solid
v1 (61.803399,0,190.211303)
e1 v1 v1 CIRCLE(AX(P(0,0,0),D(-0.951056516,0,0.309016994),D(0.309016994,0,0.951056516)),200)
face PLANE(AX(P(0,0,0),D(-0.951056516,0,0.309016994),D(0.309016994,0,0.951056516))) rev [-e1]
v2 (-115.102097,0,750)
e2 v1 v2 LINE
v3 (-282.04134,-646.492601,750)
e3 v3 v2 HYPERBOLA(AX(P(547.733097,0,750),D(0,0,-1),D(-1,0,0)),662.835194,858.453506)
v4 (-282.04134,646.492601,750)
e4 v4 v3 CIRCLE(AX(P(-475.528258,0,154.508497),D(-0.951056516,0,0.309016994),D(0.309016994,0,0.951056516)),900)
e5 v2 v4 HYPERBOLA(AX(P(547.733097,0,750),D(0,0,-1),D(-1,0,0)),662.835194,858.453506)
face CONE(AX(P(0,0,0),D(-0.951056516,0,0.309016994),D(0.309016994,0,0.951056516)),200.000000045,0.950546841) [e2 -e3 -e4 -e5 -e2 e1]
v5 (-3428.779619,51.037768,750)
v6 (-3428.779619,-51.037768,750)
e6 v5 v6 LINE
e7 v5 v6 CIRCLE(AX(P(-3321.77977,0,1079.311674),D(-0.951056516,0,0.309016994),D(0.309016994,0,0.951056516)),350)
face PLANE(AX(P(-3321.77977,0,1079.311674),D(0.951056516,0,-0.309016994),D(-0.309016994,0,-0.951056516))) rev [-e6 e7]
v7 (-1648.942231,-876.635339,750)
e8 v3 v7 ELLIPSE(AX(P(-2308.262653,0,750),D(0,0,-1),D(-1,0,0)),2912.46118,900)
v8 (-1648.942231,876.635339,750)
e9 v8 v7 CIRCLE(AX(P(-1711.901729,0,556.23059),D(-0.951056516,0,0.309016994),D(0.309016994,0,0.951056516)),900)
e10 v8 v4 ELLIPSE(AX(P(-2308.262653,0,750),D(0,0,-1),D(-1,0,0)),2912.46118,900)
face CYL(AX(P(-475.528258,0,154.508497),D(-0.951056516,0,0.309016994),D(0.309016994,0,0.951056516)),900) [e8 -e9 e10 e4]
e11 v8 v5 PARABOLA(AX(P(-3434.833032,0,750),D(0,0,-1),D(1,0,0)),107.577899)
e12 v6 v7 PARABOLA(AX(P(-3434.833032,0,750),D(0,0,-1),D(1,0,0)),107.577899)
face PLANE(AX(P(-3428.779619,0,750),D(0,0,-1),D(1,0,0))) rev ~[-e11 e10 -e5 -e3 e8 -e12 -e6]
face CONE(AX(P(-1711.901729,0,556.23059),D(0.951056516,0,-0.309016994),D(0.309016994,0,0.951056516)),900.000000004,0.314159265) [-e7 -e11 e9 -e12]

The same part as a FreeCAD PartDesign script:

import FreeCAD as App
import Part
import Sketcher
Q = App.Units.Quantity

doc = App.newDocument("Part")
body = doc.addObject("PartDesign::Body", "Body")

sketch1 = body.newObject("Sketcher::SketchObject", "Sketch")
sketch1.AttachmentSupport = (doc.getObject("XZ_Plane"), [""])
sketch1.MapMode = "FlatFace"
sketch1.addGeometry(Part.LineSegment(App.Vector(-1434, 1412, 0), App.Vector(-3214, 1412, 0)), False)
sketch1.addGeometry(Part.LineSegment(App.Vector(-3214, 1412, 0), App.Vector(-3322, 1079, 0)), False)
sketch1.addGeometry(Part.LineSegment(App.Vector(-3322, 1079, 0), App.Vector(0, 0, 0)), False)
sketch1.addGeometry(Part.LineSegment(App.Vector(0, 0, 0), App.Vector(62, 190, 0)), False)
sketch1.addGeometry(Part.LineSegment(App.Vector(62, 190, 0), App.Vector(-197, 1010, 0)), False)
sketch1.addGeometry(Part.LineSegment(App.Vector(-197, 1010, 0), App.Vector(-1434, 1412, 0)), False)
sketch1.addGeometry(Part.LineSegment(App.Vector(0, 0, 0), App.Vector(-3322, 1079, 0)), True)
sketch1.addConstraint(Sketcher.Constraint("Coincident", 0, 2, 1, 1))
sketch1.addConstraint(Sketcher.Constraint("Coincident", 1, 2, 2, 1))
sketch1.addConstraint(Sketcher.Constraint("Coincident", 2, 2, 3, 1))
sketch1.addConstraint(Sketcher.Constraint("Coincident", 3, 2, 4, 1))
sketch1.addConstraint(Sketcher.Constraint("Coincident", 4, 2, 5, 1))
sketch1.addConstraint(Sketcher.Constraint("Coincident", 5, 2, 0, 1))
sketch1.addConstraint(Sketcher.Constraint("Horizontal", 0))
sketch1.addConstraint(Sketcher.Constraint("Coincident", 2, 2, -1, 1))
sketch1.addConstraint(Sketcher.Constraint("Coincident", 6, 1, -1, 1))
sketch1.addConstraint(Sketcher.Constraint("Coincident", 6, 2, 1, 2))
sketch1.addConstraint(Sketcher.Constraint("Perpendicular", 1, 2))
sketch1.addConstraint(Sketcher.Constraint("Perpendicular", 2, 3))
sketch1.addConstraint(Sketcher.Constraint("Perpendicular", 3, 5))
sketch1.addConstraint(Sketcher.Constraint("Angle", 1, Q("-108 deg")))
sketch1.addConstraint(Sketcher.Constraint("Distance", 1, Q("350 mm")))
sketch1.addConstraint(Sketcher.Constraint("Distance", 3, Q("200 mm")))
sketch1.addConstraint(Sketcher.Constraint("Distance", 5, Q("1300 mm")))
sketch1.addConstraint(Sketcher.Constraint("DistanceX", 0, 2, 0, 1, Q("1779.837388 mm")))
sketch1.addConstraint(Sketcher.Constraint("DistanceX", 1, 2, -1, 1, Q("3321.77977 mm")))
revolution = body.newObject("PartDesign::Revolution", "Revolution")
revolution.Profile = sketch1
revolution.ReferenceAxis = (sketch1, ["Axis0"])
revolution.Angle = 360

sketch2 = body.newObject("Sketcher::SketchObject", "Sketch001")
sketch2.AttachmentSupport = (doc.getObject("XZ_Plane"), [""])
sketch2.MapMode = "FlatFace"
sketch2.addGeometry(Part.LineSegment(App.Vector(-3429, 1600, 0), App.Vector(-3429, 750, 0)), False)
sketch2.addGeometry(Part.LineSegment(App.Vector(-3429, 750, 0), App.Vector(548, 750, 0)), False)
sketch2.addGeometry(Part.LineSegment(App.Vector(548, 750, 0), App.Vector(548, 1600, 0)), False)
sketch2.addGeometry(Part.LineSegment(App.Vector(548, 1600, 0), App.Vector(-3429, 1600, 0)), False)
sketch2.addConstraint(Sketcher.Constraint("Coincident", 0, 2, 1, 1))
sketch2.addConstraint(Sketcher.Constraint("Coincident", 1, 2, 2, 1))
sketch2.addConstraint(Sketcher.Constraint("Coincident", 2, 2, 3, 1))
sketch2.addConstraint(Sketcher.Constraint("Coincident", 3, 2, 0, 1))
sketch2.addConstraint(Sketcher.Constraint("Vertical", 0))
sketch2.addConstraint(Sketcher.Constraint("Horizontal", 1))
sketch2.addConstraint(Sketcher.Constraint("Vertical", 2))
sketch2.addConstraint(Sketcher.Constraint("Horizontal", 3))
sketch2.addConstraint(Sketcher.Constraint("DistanceY", 0, 2, 0, 1, Q("850 mm")))
sketch2.addConstraint(Sketcher.Constraint("DistanceY", -1, 1, 0, 2, Q("750 mm")))
sketch2.addConstraint(Sketcher.Constraint("DistanceX", 1, 1, 1, 2, Q("3977.120765 mm")))
sketch2.addConstraint(Sketcher.Constraint("DistanceX", 0, 2, -1, 1, Q("3428.779619 mm")))
pocket1 = body.newObject("PartDesign::Pocket", "Pocket")
pocket1.Profile = sketch2
pocket1.Length = 1800
pocket1.Midplane = True

doc.recompute()
